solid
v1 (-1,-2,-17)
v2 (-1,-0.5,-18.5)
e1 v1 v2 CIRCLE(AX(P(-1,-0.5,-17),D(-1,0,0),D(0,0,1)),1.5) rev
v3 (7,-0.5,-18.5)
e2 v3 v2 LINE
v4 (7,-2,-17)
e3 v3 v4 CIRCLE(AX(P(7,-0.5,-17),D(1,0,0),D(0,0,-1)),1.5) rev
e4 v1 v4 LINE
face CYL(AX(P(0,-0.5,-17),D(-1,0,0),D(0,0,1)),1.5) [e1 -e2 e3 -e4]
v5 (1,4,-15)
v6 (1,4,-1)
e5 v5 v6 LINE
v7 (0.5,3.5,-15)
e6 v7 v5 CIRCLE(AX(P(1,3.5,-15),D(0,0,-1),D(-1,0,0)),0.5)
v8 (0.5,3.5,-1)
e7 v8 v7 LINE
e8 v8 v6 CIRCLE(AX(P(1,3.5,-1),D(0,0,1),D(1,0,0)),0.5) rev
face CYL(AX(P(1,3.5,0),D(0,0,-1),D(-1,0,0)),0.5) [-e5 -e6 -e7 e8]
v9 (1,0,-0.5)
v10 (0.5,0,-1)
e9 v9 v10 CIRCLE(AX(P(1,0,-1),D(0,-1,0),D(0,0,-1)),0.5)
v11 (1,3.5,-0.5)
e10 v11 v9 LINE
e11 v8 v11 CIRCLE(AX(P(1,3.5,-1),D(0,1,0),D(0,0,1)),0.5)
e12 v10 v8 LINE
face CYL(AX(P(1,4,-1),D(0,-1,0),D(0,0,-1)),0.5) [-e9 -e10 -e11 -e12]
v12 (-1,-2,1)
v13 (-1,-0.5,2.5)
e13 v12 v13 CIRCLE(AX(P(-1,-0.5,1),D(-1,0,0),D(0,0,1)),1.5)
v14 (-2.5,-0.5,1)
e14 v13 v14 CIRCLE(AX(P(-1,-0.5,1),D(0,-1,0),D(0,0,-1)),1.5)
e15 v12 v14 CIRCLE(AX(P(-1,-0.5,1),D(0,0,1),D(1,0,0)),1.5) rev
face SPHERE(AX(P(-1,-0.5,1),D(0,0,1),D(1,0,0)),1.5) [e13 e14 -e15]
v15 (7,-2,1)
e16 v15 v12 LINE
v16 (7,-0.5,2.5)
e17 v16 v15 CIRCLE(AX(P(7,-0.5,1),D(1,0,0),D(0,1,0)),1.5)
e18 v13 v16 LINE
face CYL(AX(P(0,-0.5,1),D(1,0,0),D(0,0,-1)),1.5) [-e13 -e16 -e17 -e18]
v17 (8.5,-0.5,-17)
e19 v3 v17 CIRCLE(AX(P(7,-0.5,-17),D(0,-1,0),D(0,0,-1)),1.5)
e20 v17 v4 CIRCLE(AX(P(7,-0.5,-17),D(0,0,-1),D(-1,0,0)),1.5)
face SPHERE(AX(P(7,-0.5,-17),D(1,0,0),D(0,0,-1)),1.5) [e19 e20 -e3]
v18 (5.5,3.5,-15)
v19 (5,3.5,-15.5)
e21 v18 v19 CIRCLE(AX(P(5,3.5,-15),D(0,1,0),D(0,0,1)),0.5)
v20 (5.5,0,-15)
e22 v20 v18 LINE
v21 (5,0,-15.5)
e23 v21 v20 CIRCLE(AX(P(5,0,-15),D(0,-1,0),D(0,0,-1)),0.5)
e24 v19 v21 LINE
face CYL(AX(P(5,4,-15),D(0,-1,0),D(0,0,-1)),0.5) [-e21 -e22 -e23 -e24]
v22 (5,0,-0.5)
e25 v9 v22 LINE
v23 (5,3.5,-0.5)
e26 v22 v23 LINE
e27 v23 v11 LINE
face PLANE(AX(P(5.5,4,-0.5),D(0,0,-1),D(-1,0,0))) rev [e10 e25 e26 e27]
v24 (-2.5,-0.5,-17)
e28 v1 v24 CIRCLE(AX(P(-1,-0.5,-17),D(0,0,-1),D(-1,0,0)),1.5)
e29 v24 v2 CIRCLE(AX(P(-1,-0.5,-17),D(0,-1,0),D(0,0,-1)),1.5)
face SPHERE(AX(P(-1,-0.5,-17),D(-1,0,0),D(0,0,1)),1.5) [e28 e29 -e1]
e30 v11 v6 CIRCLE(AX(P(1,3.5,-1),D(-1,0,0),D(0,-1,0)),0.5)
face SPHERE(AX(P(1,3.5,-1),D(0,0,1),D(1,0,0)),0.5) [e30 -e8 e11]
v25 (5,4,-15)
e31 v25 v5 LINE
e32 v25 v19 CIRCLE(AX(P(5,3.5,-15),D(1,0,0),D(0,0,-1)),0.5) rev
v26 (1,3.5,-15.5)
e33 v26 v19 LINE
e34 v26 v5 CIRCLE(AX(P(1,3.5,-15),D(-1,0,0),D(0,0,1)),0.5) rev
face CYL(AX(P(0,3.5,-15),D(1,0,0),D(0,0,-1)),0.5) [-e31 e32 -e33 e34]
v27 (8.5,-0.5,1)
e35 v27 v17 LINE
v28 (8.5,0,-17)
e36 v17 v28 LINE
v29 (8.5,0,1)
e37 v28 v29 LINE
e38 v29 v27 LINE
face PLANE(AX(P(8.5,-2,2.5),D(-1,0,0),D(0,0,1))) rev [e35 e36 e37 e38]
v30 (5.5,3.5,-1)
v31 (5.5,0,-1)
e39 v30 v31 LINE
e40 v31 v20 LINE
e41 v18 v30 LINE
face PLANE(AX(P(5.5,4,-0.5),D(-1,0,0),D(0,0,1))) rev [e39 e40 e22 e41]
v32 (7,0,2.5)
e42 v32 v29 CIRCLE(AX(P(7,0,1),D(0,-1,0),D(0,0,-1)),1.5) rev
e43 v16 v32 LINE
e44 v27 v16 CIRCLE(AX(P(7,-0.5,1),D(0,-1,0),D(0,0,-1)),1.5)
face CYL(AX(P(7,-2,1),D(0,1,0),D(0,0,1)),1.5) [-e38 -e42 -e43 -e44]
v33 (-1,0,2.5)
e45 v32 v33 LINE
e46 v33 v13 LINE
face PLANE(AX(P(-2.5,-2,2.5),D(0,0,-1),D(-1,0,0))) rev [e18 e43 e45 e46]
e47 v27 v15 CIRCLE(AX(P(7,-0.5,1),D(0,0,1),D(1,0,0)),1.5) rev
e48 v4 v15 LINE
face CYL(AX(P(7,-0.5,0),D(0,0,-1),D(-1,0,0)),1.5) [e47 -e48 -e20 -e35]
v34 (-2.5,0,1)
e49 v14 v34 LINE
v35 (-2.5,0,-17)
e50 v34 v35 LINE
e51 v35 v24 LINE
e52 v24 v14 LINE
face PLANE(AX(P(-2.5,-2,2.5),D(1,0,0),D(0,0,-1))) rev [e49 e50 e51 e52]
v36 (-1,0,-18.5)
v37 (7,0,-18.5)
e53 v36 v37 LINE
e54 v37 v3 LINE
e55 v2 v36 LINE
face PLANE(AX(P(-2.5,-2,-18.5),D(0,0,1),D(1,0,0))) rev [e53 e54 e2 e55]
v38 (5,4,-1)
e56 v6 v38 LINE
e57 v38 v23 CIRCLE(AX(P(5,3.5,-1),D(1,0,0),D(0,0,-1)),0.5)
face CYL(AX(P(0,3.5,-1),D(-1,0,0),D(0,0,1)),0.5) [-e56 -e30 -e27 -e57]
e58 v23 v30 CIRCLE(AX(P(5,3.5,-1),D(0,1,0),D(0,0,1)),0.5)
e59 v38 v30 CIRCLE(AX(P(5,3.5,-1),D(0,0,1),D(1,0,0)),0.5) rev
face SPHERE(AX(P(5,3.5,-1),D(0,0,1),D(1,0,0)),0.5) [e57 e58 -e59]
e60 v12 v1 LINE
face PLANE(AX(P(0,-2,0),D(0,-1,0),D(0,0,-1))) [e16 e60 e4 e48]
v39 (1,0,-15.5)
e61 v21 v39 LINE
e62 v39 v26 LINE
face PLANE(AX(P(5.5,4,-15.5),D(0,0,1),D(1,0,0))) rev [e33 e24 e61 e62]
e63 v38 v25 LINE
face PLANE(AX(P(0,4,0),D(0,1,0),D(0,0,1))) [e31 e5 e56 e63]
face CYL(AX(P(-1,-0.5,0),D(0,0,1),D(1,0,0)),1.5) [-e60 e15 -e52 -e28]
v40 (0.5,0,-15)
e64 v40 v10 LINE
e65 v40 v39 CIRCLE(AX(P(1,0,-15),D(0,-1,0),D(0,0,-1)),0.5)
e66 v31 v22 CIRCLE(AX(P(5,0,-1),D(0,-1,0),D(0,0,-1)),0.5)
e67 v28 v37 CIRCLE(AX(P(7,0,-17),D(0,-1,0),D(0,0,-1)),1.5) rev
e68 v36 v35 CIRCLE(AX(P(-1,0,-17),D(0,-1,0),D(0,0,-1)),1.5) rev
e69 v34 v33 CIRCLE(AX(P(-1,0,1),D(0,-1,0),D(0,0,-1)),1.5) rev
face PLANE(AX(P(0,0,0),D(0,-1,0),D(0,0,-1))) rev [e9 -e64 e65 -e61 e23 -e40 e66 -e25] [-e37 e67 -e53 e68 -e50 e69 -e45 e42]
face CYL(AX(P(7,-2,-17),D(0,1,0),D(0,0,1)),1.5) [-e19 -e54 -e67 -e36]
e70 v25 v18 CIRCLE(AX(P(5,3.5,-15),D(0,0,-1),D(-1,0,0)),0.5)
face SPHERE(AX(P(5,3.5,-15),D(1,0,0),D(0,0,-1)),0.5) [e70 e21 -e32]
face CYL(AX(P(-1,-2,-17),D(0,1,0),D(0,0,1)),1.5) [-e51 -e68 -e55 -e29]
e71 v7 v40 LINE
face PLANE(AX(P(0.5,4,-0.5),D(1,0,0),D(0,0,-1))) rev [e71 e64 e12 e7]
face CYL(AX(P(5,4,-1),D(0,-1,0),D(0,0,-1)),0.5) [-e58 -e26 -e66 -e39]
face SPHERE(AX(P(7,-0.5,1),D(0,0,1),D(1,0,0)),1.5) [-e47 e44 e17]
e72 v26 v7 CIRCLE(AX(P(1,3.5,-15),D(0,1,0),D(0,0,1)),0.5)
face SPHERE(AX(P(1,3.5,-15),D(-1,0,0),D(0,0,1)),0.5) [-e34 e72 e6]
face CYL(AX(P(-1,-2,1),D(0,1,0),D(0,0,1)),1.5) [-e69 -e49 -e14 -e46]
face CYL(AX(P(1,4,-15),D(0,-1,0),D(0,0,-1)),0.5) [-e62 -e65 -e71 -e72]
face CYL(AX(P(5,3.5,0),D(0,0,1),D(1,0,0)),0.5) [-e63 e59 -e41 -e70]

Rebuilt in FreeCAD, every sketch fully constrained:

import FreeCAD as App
import Part
import Sketcher
from FreeCAD import Vector
Q = App.Units.Quantity


def edges_at(feature, points):
    """Names of the edges that pass closest to the given points."""
    edges = feature.Shape.Edges
    near = lambda p: min(range(len(edges)), key=lambda i: edges[i].distToShape(Part.Vertex(*p))[0])
    return sorted({f"Edge{near(p) + 1}" for p in points})

doc = App.newDocument("Part")
body = doc.addObject("PartDesign::Body", "Body")

# Sketch on XZ plane
sketch1 = doc.addObject("Sketcher::SketchObject", "Sketch")
body.addObject(sketch1)
sketch1.AttachmentSupport = (doc.XZ_Plane, [""])
sketch1.MapMode = "FlatFace"
sketch1.addGeometry([
    Part.LineSegment(Vector(0, -16, 0), Vector(0, 0, 0)),
    Part.LineSegment(Vector(0, 0, 0), Vector(6, 0, 0)),
    Part.LineSegment(Vector(6, 0, 0), Vector(6, -16, 0)),
    Part.LineSegment(Vector(6, -16, 0), Vector(0, -16, 0)),
], False)
sketch1.addConstraint([
    Sketcher.Constraint("Coincident", 0, 2, 1, 1),
    Sketcher.Constraint("Coincident", 1, 2, 2, 1),
    Sketcher.Constraint("Coincident", 2, 2, 3, 1),
    Sketcher.Constraint("Coincident", 3, 2, 0, 1),
    Sketcher.Constraint("Vertical", 0),
    Sketcher.Constraint("Horizontal", 1),
    Sketcher.Constraint("Vertical", 2),
    Sketcher.Constraint("Horizontal", 3),
    Sketcher.Constraint("DistanceX", 1, 1, 1, 2, Q("5 mm")),
    Sketcher.Constraint("DistanceY", 0, 1, 0, 2, Q("15 mm")),
    Sketcher.Constraint("DistanceX", -1, 1, 0, 2, Q("0.5 mm")),
    Sketcher.Constraint("DistanceY", 0, 2, -1, 1, Q("0.5 mm")),
])
pad1 = doc.addObject("PartDesign::Pad", "Pad")
body.addObject(pad1)
pad1.Profile = sketch1
pad1.Length = 4
pad1.Reversed = True

# Sketch on XZ plane
sketch2 = doc.addObject("Sketcher::SketchObject", "Sketch001")
body.addObject(sketch2)
sketch2.AttachmentSupport = (doc.XZ_Plane, [""])
sketch2.MapMode = "FlatFace"
sketch2.addGeometry([
    Part.LineSegment(Vector(-2, 2, 0), Vector(-2, -18, 0)),
    Part.LineSegment(Vector(-2, -18, 0), Vector(8, -18, 0)),
    Part.LineSegment(Vector(8, -18, 0), Vector(8, 2, 0)),
    Part.LineSegment(Vector(8, 2, 0), Vector(-2, 2, 0)),
], False)
sketch2.addConstraint([
    Sketcher.Constraint("Coincident", 0, 2, 1, 1),
    Sketcher.Constraint("Coincident", 1, 2, 2, 1),
    Sketcher.Constraint("Coincident", 2, 2, 3, 1),
    Sketcher.Constraint("Coincident", 3, 2, 0, 1),
    Sketcher.Constraint("Vertical", 0),
    Sketcher.Constraint("Horizontal", 1),
    Sketcher.Constraint("Vertical", 2),
    Sketcher.Constraint("Horizontal", 3),
    Sketcher.Constraint("DistanceX", 1, 1, 1, 2, Q("11 mm")),
    Sketcher.Constraint("DistanceY", 0, 2, 0, 1, Q("21 mm")),
    Sketcher.Constraint("DistanceX", 0, 2, -1, 1, Q("2.5 mm")),
    Sketcher.Constraint("DistanceY", 0, 2, -1, 1, Q("18.5 mm")),
])
pad2 = doc.addObject("PartDesign::Pad", "Pad001")
body.addObject(pad2)
pad2.Profile = sketch2
pad2.Length = 2
doc.recompute()

fillet = doc.addObject("PartDesign::Fillet", "Fillet")
body.addObject(fillet)
fillet.Base = (pad2, edges_at(pad2, [
    (5.5, 4, -8),
    (3, 4, -15.5),
    (0.5, 4, -8),
    (0.5, 2, -15.5),
    (5.5, 2, -15.5),
    (5.5, 2, -0.5),
    (0.5, 2, -0.5),
    (3, 4, -0.5),
]))
fillet.Radius = 0.5
doc.recompute()

fillet2 = doc.addObject("PartDesign::Fillet", "Fillet001")
body.addObject(fillet2)
fillet2.Base = (fillet, edges_at(fillet, [
    (8.5, -1, -18.5),
    (8.5, -1, 2.5),
    (-2.5, -1, 2.5),
    (-2.5, -1, -18.5),
    (8.5, -2, -8),
    (3, -2, 2.5),
    (-2.5, -2, -8),
    (3, -2, -18.5),
]))
fillet2.Radius = 1.5

doc.recompute()
